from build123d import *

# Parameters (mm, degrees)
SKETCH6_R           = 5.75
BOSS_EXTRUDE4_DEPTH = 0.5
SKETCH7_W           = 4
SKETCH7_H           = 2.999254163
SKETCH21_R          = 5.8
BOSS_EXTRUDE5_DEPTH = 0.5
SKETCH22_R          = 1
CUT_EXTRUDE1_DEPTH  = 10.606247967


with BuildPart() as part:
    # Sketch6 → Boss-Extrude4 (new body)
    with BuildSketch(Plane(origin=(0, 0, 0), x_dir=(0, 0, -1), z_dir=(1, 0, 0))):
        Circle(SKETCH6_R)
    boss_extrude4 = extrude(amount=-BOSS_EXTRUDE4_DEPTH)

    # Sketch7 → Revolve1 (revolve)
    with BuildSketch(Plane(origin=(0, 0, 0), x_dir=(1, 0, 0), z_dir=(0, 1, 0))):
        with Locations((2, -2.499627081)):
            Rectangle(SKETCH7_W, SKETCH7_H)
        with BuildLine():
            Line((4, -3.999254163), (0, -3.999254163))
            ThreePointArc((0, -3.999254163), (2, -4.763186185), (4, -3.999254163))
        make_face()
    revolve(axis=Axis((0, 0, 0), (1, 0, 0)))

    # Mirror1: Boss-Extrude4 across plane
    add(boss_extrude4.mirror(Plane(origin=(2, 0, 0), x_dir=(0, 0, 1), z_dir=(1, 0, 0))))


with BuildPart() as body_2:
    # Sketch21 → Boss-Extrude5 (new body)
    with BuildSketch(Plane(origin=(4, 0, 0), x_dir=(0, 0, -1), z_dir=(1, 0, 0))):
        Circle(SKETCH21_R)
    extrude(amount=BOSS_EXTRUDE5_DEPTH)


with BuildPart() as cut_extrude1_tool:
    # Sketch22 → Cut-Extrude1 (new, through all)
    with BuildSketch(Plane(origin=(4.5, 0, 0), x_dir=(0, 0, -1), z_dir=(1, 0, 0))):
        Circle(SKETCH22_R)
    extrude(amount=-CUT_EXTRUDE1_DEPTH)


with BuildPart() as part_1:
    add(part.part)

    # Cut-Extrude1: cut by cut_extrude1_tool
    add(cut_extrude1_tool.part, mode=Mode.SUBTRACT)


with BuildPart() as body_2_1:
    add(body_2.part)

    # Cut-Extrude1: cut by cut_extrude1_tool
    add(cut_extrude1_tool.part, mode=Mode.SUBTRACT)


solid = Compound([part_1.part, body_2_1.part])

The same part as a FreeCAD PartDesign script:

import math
import FreeCAD as App
import Part
import Sketcher
Q = App.Units.Quantity

doc = App.newDocument("Part")
body = doc.addObject("PartDesign::Body", "Body")

sketch1 = doc.addObject("Sketcher::SketchObject", "Sketch")
body.addObject(sketch1)
sketch1.AttachmentSupport = (doc.YZ_Plane, [""])
sketch1.MapMode = "FlatFace"
sketch1.addGeometry(Part.Circle(App.Vector(0, 0, 0), App.Vector(0, 0, 1), 5.75), False)
sketch1.addConstraint(Sketcher.Constraint("Coincident", 0, 3, -1, 1))
sketch1.addConstraint(Sketcher.Constraint("Diameter", 0, Q("11.5 mm")))
pad1 = doc.addObject("PartDesign::Pad", "Pad")
body.addObject(pad1)
pad1.Profile = sketch1
pad1.Length = 0.5
pad1.Reversed = True

sketch2 = doc.addObject("Sketcher::SketchObject", "Sketch001")
body.addObject(sketch2)
sketch2.AttachmentSupport = (doc.XZ_Plane, [""])
sketch2.MapMode = "FlatFace"
sketch2.addGeometry(Part.LineSegment(App.Vector(0, 1, 0), App.Vector(0, 3.999254, 0)), False)
sketch2.addGeometry(Part.ArcOfCircle(Part.Circle(App.Vector(2, 1.763186, 0), App.Vector(0, 0, 1), 3), math.radians(48.189685), math.radians(131.810315)), False)
sketch2.addGeometry(Part.LineSegment(App.Vector(4, 3.999254, 0), App.Vector(4, 1, 0)), False)
sketch2.addGeometry(Part.LineSegment(App.Vector(4, 1, 0), App.Vector(0, 1, 0)), False)
sketch2.addConstraint(Sketcher.Constraint("Coincident", 0, 2, 1, 2))
sketch2.addConstraint(Sketcher.Constraint("Coincident", 1, 1, 2, 1))
sketch2.addConstraint(Sketcher.Constraint("Coincident", 2, 2, 3, 1))
sketch2.addConstraint(Sketcher.Constraint("Coincident", 3, 2, 0, 1))
sketch2.addConstraint(Sketcher.Constraint("Vertical", 0))
sketch2.addConstraint(Sketcher.Constraint("Vertical", 2))
sketch2.addConstraint(Sketcher.Constraint("Horizontal", 3))
sketch2.addConstraint(Sketcher.Constraint("PointOnObject", 0, 2, -2))
sketch2.addConstraint(Sketcher.Constraint("Horizontal", 0, 2, 1, 1))
sketch2.addConstraint(Sketcher.Constraint("Radius", 1, Q("3 mm")))
sketch2.addConstraint(Sketcher.Constraint("DistanceX", 3, 2, 3, 1, Q("4 mm")))
sketch2.addConstraint(Sketcher.Constraint("DistanceY", -1, 1, 2, 2, Q("1 mm")))
sketch2.addConstraint(Sketcher.Constraint("DistanceY", 0, 1, 0, 2, Q("2.999254 mm")))
revolution = doc.addObject("PartDesign::Revolution", "Revolution")
body.addObject(revolution)
revolution.Profile = sketch2
revolution.ReferenceAxis = (sketch2, ["H_Axis"])
revolution.Angle = 360
doc.recompute()

datumplane = doc.addObject("PartDesign::Plane", "DatumPlane")
body.addObject(datumplane)
datumplane.AttachmentSupport = (doc.YZ_Plane, [""])
datumplane.MapMode = "FlatFace"
datumplane.AttachmentOffset = App.Placement(App.Vector(0, 0, 2), App.Rotation())
mirrored = doc.addObject("PartDesign::Mirrored", "Mirrored")
body.addObject(mirrored)
mirrored.Originals = [pad1]
mirrored.MirrorPlane = (datumplane, [""])
body.Tip = mirrored
body2 = doc.addObject("PartDesign::Body", "Body001")

sketch3 = doc.addObject("Sketcher::SketchObject", "Sketch002")
body2.addObject(sketch3)
sketch3.AttachmentSupport = (doc.getObject("YZ_Plane001"), [""])
sketch3.MapMode = "FlatFace"
sketch3.AttachmentOffset = App.Placement(App.Vector(0, 0, 4), App.Rotation())
sketch3.addGeometry(Part.Circle(App.Vector(0, 0, 0), App.Vector(0, 0, 1), 5.8), False)
sketch3.addConstraint(Sketcher.Constraint("Coincident", 0, 3, -1, 1))
sketch3.addConstraint(Sketcher.Constraint("Diameter", 0, Q("11.6 mm")))
pad2 = doc.addObject("PartDesign::Pad", "Pad001")
body2.addObject(pad2)
pad2.Profile = sketch3
pad2.Length = 0.5
body3 = doc.addObject("PartDesign::Body", "Body002")

sketch4 = doc.addObject("Sketcher::SketchObject", "Sketch003")
body3.addObject(sketch4)
sketch4.AttachmentSupport = (doc.getObject("YZ_Plane002"), [""])
sketch4.MapMode = "FlatFace"
sketch4.AttachmentOffset = App.Placement(App.Vector(0, 0, 4.5), App.Rotation())
sketch4.addGeometry(Part.Circle(App.Vector(0, 0, 0), App.Vector(0, 0, 1), 1), False)
sketch4.addConstraint(Sketcher.Constraint("Coincident", 0, 3, -1, 1))
sketch4.addConstraint(Sketcher.Constraint("Diameter", 0, Q("2 mm")))
pad3 = doc.addObject("PartDesign::Pad", "Pad002")
body3.addObject(pad3)
pad3.Profile = sketch4
pad3.Length = 10.606248
pad3.Reversed = True
doc.recompute()

body4 = doc.addObject("PartDesign::Body", "Body003")
body4.BaseFeature = body3
boolean = doc.addObject("PartDesign::Boolean", "Boolean")
body.addObject(boolean)
boolean.Type = "Cut"
boolean.addObjects([body4])
doc.recompute()

boolean2 = doc.addObject("PartDesign::Boolean", "Boolean001")
body2.addObject(boolean2)
boolean2.Type = "Cut"
boolean2.addObjects([body3])

doc.recompute()
